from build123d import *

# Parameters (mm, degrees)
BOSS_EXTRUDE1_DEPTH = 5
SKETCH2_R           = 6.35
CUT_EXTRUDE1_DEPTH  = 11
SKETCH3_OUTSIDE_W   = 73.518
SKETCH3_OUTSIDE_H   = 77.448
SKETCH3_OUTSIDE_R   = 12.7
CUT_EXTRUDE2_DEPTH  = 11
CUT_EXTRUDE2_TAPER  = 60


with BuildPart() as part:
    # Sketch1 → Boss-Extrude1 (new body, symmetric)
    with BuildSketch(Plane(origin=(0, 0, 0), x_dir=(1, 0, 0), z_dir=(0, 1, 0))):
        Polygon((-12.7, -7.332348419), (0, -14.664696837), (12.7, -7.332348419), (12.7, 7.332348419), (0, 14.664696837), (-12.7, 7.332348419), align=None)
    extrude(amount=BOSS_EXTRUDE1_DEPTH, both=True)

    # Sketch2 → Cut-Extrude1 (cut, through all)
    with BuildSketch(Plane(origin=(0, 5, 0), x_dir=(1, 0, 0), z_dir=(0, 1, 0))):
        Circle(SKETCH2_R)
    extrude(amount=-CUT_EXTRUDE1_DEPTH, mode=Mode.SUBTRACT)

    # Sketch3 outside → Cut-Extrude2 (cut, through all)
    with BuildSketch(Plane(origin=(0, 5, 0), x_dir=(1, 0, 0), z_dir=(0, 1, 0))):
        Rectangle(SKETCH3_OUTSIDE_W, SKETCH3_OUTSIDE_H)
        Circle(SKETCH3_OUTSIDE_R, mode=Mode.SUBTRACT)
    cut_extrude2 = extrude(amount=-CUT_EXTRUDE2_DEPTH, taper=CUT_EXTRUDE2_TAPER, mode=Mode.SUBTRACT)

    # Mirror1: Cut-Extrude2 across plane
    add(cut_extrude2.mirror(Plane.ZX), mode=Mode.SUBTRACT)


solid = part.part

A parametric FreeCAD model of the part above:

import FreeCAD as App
import Part
import Sketcher

V = App.Vector
Q = App.Units.Quantity

doc = App.newDocument("Part")
body = doc.addObject("PartDesign::Body", "Body")

sketch1 = doc.addObject("Sketcher::SketchObject", "Sketch")
body.addObject(sketch1)
sketch1.AttachmentSupport = (doc.XZ_Plane, [""])
sketch1.MapMode = "FlatFace"
sketch1.addGeometry([
    Part.LineSegment(V(-12.7, 7.332348, 0), V(0, 14.664697, 0)),
    Part.LineSegment(V(0, 14.664697, 0), V(12.7, 7.332348, 0)),
    Part.LineSegment(V(12.7, 7.332348, 0), V(12.7, -7.332348, 0)),
    Part.LineSegment(V(12.7, -7.332348, 0), V(0, -14.664697, 0)),
    Part.LineSegment(V(0, -14.664697, 0), V(-12.7, -7.332348, 0)),
    Part.LineSegment(V(-12.7, -7.332348, 0), V(-12.7, 7.332348, 0)),
], False)
sketch1.addConstraint([
    Sketcher.Constraint("Coincident", 0, 2, 1, 1),
    Sketcher.Constraint("Coincident", 1, 2, 2, 1),
    Sketcher.Constraint("Coincident", 2, 2, 3, 1),
    Sketcher.Constraint("Coincident", 3, 2, 4, 1),
    Sketcher.Constraint("Coincident", 4, 2, 5, 1),
    Sketcher.Constraint("Coincident", 5, 2, 0, 1),
    Sketcher.Constraint("Vertical", 2),
    Sketcher.Constraint("Vertical", 5),
    Sketcher.Constraint("Symmetric", 0, 2, 3, 2, -1, 1),
    Sketcher.Constraint("Symmetric", 1, 2, 4, 2, -1, 1),
    Sketcher.Constraint("PointOnObject", 0, 2, -2),
    Sketcher.Constraint("Parallel", 0, 3),
    Sketcher.Constraint("Horizontal", 2, 2, 4, 2),
    Sketcher.Constraint("Angle", 0, Q("30 deg")),
    Sketcher.Constraint("DistanceX", -1, 1, 1, 2, Q("12.7 mm")),
    Sketcher.Constraint("DistanceY", 2, 2, 2, 1, Q("14.664697 mm")),
])
pad1 = doc.addObject("PartDesign::Pad", "Pad")
body.addObject(pad1)
pad1.Profile = sketch1
pad1.Length = 10
pad1.Midplane = True

sketch2 = doc.addObject("Sketcher::SketchObject", "Sketch001")
body.addObject(sketch2)
sketch2.AttachmentSupport = (doc.XZ_Plane, [""])
sketch2.MapMode = "FlatFace"
sketch2.AttachmentOffset = App.Placement(V(0, 0, -5), App.Rotation())
sketch2.addGeometry(Part.Circle(V(0, 0, 0), V(0, 0, 1), 6.35), False)
sketch2.addConstraint([
    Sketcher.Constraint("Coincident", 0, 3, -1, 1),
    Sketcher.Constraint("Diameter", 0, Q("12.7 mm")),
])
pocket1 = doc.addObject("PartDesign::Pocket", "Pocket")
body.addObject(pocket1)
pocket1.Profile = sketch2
pocket1.Type = "ThroughAll"
pocket1.Reversed = True

sketch3 = doc.addObject("Sketcher::SketchObject", "Sketch002")
body.addObject(sketch3)
sketch3.AttachmentSupport = (doc.XZ_Plane, [""])
sketch3.MapMode = "FlatFace"
sketch3.AttachmentOffset = App.Placement(V(0, 0, -5), App.Rotation())
sketch3.addGeometry([
    Part.LineSegment(V(-36.759, -38.724, 0), V(-36.759, 38.724, 0)),
    Part.LineSegment(V(-36.759, 38.724, 0), V(36.759, 38.724, 0)),
    Part.LineSegment(V(36.759, 38.724, 0), V(36.759, -38.724, 0)),
    Part.LineSegment(V(36.759, -38.724, 0), V(-36.759, -38.724, 0)),
    Part.Circle(V(0, 0, 0), V(0, 0, 1), 12.7),
], False)
sketch3.addConstraint([
    Sketcher.Constraint("Coincident", 0, 2, 1, 1),
    Sketcher.Constraint("Coincident", 1, 2, 2, 1),
    Sketcher.Constraint("Coincident", 2, 2, 3, 1),
    Sketcher.Constraint("Coincident", 3, 2, 0, 1),
    Sketcher.Constraint("Vertical", 0),
    Sketcher.Constraint("Horizontal", 1),
    Sketcher.Constraint("Vertical", 2),
    Sketcher.Constraint("Horizontal", 3),
    Sketcher.Constraint("Coincident", 4, 3, -1, 1),
    Sketcher.Constraint("Symmetric", 0, 2, 2, 2, -1, 1),
    Sketcher.Constraint("Diameter", 4, Q("25.4 mm")),
    Sketcher.Constraint("DistanceX", 1, 1, 1, 2, Q("73.518 mm")),
    Sketcher.Constraint("DistanceY", 0, 1, 0, 2, Q("77.448 mm")),
])
pocket2 = doc.addObject("PartDesign::Pocket", "Pocket001")
body.addObject(pocket2)
pocket2.Profile = sketch3
pocket2.Length = 11
pocket2.Reversed = True
pocket2.TaperAngle = 60
doc.recompute()

mirrored = doc.addObject("PartDesign::Mirrored", "Mirrored")
body.addObject(mirrored)
mirrored.Originals = [pocket2]
mirrored.MirrorPlane = (doc.XZ_Plane, [""])
body.Tip = mirrored

doc.recompute()
